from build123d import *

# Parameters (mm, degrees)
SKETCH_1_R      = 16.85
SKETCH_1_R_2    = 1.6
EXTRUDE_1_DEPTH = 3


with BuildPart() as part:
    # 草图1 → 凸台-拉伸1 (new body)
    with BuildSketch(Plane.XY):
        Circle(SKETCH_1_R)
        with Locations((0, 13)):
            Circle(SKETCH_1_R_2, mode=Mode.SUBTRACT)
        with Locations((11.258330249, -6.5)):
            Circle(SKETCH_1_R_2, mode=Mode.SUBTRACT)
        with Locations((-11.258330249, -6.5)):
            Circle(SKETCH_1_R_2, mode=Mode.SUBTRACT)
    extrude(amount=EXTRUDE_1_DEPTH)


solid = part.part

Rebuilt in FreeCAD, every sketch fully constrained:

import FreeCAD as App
import Part
import Sketcher

doc = App.newDocument("Part")
body = doc.addObject("PartDesign::Body", "Body")

# Sketch on XY plane
sketch1 = body.newObject("Sketcher::SketchObject", "Sketch")
sketch1.AttachmentSupport = (doc.getObject("XY_Plane"), [""])
sketch1.MapMode = "FlatFace"
sketch1.addGeometry([
    Part.Circle(App.Vector(0, 0, 0), App.Vector(0, 0, 1), 16.9),
    Part.Circle(App.Vector(-11.3, -6.5, 0), App.Vector(0, 0, 1), 1.6),
    Part.Circle(App.Vector(11.3, -6.5, 0), App.Vector(0, 0, 1), 1.6),
    Part.Circle(App.Vector(0, 13, 0), App.Vector(0, 0, 1), 1.6),
], False)
sketch1.addConstraint([
    Sketcher.Constraint("Coincident", 0, 3, -1, 1),
    Sketcher.Constraint("Equal", 1, 2),
    Sketcher.Constraint("Equal", 2, 3),
    Sketcher.Constraint("Symmetric", 1, 3, 2, 3, -2),
    Sketcher.Constraint("PointOnObject", 3, 3, -2),
    Sketcher.Constraint("Diameter", 0, 33.7),
    Sketcher.Constraint("Diameter", 1, 3.2),
    Sketcher.Constraint("DistanceY", -1, 1, 3, 3, 13.0),
    Sketcher.Constraint("DistanceY", 1, 3, -1, 1, 6.5),
    Sketcher.Constraint("DistanceX", 1, 3, -1, 1, 11.25833),
])
pad1 = body.newObject("PartDesign::Pad", "Pad")
pad1.Profile = sketch1
pad1.Length = 3

doc.recompute()
